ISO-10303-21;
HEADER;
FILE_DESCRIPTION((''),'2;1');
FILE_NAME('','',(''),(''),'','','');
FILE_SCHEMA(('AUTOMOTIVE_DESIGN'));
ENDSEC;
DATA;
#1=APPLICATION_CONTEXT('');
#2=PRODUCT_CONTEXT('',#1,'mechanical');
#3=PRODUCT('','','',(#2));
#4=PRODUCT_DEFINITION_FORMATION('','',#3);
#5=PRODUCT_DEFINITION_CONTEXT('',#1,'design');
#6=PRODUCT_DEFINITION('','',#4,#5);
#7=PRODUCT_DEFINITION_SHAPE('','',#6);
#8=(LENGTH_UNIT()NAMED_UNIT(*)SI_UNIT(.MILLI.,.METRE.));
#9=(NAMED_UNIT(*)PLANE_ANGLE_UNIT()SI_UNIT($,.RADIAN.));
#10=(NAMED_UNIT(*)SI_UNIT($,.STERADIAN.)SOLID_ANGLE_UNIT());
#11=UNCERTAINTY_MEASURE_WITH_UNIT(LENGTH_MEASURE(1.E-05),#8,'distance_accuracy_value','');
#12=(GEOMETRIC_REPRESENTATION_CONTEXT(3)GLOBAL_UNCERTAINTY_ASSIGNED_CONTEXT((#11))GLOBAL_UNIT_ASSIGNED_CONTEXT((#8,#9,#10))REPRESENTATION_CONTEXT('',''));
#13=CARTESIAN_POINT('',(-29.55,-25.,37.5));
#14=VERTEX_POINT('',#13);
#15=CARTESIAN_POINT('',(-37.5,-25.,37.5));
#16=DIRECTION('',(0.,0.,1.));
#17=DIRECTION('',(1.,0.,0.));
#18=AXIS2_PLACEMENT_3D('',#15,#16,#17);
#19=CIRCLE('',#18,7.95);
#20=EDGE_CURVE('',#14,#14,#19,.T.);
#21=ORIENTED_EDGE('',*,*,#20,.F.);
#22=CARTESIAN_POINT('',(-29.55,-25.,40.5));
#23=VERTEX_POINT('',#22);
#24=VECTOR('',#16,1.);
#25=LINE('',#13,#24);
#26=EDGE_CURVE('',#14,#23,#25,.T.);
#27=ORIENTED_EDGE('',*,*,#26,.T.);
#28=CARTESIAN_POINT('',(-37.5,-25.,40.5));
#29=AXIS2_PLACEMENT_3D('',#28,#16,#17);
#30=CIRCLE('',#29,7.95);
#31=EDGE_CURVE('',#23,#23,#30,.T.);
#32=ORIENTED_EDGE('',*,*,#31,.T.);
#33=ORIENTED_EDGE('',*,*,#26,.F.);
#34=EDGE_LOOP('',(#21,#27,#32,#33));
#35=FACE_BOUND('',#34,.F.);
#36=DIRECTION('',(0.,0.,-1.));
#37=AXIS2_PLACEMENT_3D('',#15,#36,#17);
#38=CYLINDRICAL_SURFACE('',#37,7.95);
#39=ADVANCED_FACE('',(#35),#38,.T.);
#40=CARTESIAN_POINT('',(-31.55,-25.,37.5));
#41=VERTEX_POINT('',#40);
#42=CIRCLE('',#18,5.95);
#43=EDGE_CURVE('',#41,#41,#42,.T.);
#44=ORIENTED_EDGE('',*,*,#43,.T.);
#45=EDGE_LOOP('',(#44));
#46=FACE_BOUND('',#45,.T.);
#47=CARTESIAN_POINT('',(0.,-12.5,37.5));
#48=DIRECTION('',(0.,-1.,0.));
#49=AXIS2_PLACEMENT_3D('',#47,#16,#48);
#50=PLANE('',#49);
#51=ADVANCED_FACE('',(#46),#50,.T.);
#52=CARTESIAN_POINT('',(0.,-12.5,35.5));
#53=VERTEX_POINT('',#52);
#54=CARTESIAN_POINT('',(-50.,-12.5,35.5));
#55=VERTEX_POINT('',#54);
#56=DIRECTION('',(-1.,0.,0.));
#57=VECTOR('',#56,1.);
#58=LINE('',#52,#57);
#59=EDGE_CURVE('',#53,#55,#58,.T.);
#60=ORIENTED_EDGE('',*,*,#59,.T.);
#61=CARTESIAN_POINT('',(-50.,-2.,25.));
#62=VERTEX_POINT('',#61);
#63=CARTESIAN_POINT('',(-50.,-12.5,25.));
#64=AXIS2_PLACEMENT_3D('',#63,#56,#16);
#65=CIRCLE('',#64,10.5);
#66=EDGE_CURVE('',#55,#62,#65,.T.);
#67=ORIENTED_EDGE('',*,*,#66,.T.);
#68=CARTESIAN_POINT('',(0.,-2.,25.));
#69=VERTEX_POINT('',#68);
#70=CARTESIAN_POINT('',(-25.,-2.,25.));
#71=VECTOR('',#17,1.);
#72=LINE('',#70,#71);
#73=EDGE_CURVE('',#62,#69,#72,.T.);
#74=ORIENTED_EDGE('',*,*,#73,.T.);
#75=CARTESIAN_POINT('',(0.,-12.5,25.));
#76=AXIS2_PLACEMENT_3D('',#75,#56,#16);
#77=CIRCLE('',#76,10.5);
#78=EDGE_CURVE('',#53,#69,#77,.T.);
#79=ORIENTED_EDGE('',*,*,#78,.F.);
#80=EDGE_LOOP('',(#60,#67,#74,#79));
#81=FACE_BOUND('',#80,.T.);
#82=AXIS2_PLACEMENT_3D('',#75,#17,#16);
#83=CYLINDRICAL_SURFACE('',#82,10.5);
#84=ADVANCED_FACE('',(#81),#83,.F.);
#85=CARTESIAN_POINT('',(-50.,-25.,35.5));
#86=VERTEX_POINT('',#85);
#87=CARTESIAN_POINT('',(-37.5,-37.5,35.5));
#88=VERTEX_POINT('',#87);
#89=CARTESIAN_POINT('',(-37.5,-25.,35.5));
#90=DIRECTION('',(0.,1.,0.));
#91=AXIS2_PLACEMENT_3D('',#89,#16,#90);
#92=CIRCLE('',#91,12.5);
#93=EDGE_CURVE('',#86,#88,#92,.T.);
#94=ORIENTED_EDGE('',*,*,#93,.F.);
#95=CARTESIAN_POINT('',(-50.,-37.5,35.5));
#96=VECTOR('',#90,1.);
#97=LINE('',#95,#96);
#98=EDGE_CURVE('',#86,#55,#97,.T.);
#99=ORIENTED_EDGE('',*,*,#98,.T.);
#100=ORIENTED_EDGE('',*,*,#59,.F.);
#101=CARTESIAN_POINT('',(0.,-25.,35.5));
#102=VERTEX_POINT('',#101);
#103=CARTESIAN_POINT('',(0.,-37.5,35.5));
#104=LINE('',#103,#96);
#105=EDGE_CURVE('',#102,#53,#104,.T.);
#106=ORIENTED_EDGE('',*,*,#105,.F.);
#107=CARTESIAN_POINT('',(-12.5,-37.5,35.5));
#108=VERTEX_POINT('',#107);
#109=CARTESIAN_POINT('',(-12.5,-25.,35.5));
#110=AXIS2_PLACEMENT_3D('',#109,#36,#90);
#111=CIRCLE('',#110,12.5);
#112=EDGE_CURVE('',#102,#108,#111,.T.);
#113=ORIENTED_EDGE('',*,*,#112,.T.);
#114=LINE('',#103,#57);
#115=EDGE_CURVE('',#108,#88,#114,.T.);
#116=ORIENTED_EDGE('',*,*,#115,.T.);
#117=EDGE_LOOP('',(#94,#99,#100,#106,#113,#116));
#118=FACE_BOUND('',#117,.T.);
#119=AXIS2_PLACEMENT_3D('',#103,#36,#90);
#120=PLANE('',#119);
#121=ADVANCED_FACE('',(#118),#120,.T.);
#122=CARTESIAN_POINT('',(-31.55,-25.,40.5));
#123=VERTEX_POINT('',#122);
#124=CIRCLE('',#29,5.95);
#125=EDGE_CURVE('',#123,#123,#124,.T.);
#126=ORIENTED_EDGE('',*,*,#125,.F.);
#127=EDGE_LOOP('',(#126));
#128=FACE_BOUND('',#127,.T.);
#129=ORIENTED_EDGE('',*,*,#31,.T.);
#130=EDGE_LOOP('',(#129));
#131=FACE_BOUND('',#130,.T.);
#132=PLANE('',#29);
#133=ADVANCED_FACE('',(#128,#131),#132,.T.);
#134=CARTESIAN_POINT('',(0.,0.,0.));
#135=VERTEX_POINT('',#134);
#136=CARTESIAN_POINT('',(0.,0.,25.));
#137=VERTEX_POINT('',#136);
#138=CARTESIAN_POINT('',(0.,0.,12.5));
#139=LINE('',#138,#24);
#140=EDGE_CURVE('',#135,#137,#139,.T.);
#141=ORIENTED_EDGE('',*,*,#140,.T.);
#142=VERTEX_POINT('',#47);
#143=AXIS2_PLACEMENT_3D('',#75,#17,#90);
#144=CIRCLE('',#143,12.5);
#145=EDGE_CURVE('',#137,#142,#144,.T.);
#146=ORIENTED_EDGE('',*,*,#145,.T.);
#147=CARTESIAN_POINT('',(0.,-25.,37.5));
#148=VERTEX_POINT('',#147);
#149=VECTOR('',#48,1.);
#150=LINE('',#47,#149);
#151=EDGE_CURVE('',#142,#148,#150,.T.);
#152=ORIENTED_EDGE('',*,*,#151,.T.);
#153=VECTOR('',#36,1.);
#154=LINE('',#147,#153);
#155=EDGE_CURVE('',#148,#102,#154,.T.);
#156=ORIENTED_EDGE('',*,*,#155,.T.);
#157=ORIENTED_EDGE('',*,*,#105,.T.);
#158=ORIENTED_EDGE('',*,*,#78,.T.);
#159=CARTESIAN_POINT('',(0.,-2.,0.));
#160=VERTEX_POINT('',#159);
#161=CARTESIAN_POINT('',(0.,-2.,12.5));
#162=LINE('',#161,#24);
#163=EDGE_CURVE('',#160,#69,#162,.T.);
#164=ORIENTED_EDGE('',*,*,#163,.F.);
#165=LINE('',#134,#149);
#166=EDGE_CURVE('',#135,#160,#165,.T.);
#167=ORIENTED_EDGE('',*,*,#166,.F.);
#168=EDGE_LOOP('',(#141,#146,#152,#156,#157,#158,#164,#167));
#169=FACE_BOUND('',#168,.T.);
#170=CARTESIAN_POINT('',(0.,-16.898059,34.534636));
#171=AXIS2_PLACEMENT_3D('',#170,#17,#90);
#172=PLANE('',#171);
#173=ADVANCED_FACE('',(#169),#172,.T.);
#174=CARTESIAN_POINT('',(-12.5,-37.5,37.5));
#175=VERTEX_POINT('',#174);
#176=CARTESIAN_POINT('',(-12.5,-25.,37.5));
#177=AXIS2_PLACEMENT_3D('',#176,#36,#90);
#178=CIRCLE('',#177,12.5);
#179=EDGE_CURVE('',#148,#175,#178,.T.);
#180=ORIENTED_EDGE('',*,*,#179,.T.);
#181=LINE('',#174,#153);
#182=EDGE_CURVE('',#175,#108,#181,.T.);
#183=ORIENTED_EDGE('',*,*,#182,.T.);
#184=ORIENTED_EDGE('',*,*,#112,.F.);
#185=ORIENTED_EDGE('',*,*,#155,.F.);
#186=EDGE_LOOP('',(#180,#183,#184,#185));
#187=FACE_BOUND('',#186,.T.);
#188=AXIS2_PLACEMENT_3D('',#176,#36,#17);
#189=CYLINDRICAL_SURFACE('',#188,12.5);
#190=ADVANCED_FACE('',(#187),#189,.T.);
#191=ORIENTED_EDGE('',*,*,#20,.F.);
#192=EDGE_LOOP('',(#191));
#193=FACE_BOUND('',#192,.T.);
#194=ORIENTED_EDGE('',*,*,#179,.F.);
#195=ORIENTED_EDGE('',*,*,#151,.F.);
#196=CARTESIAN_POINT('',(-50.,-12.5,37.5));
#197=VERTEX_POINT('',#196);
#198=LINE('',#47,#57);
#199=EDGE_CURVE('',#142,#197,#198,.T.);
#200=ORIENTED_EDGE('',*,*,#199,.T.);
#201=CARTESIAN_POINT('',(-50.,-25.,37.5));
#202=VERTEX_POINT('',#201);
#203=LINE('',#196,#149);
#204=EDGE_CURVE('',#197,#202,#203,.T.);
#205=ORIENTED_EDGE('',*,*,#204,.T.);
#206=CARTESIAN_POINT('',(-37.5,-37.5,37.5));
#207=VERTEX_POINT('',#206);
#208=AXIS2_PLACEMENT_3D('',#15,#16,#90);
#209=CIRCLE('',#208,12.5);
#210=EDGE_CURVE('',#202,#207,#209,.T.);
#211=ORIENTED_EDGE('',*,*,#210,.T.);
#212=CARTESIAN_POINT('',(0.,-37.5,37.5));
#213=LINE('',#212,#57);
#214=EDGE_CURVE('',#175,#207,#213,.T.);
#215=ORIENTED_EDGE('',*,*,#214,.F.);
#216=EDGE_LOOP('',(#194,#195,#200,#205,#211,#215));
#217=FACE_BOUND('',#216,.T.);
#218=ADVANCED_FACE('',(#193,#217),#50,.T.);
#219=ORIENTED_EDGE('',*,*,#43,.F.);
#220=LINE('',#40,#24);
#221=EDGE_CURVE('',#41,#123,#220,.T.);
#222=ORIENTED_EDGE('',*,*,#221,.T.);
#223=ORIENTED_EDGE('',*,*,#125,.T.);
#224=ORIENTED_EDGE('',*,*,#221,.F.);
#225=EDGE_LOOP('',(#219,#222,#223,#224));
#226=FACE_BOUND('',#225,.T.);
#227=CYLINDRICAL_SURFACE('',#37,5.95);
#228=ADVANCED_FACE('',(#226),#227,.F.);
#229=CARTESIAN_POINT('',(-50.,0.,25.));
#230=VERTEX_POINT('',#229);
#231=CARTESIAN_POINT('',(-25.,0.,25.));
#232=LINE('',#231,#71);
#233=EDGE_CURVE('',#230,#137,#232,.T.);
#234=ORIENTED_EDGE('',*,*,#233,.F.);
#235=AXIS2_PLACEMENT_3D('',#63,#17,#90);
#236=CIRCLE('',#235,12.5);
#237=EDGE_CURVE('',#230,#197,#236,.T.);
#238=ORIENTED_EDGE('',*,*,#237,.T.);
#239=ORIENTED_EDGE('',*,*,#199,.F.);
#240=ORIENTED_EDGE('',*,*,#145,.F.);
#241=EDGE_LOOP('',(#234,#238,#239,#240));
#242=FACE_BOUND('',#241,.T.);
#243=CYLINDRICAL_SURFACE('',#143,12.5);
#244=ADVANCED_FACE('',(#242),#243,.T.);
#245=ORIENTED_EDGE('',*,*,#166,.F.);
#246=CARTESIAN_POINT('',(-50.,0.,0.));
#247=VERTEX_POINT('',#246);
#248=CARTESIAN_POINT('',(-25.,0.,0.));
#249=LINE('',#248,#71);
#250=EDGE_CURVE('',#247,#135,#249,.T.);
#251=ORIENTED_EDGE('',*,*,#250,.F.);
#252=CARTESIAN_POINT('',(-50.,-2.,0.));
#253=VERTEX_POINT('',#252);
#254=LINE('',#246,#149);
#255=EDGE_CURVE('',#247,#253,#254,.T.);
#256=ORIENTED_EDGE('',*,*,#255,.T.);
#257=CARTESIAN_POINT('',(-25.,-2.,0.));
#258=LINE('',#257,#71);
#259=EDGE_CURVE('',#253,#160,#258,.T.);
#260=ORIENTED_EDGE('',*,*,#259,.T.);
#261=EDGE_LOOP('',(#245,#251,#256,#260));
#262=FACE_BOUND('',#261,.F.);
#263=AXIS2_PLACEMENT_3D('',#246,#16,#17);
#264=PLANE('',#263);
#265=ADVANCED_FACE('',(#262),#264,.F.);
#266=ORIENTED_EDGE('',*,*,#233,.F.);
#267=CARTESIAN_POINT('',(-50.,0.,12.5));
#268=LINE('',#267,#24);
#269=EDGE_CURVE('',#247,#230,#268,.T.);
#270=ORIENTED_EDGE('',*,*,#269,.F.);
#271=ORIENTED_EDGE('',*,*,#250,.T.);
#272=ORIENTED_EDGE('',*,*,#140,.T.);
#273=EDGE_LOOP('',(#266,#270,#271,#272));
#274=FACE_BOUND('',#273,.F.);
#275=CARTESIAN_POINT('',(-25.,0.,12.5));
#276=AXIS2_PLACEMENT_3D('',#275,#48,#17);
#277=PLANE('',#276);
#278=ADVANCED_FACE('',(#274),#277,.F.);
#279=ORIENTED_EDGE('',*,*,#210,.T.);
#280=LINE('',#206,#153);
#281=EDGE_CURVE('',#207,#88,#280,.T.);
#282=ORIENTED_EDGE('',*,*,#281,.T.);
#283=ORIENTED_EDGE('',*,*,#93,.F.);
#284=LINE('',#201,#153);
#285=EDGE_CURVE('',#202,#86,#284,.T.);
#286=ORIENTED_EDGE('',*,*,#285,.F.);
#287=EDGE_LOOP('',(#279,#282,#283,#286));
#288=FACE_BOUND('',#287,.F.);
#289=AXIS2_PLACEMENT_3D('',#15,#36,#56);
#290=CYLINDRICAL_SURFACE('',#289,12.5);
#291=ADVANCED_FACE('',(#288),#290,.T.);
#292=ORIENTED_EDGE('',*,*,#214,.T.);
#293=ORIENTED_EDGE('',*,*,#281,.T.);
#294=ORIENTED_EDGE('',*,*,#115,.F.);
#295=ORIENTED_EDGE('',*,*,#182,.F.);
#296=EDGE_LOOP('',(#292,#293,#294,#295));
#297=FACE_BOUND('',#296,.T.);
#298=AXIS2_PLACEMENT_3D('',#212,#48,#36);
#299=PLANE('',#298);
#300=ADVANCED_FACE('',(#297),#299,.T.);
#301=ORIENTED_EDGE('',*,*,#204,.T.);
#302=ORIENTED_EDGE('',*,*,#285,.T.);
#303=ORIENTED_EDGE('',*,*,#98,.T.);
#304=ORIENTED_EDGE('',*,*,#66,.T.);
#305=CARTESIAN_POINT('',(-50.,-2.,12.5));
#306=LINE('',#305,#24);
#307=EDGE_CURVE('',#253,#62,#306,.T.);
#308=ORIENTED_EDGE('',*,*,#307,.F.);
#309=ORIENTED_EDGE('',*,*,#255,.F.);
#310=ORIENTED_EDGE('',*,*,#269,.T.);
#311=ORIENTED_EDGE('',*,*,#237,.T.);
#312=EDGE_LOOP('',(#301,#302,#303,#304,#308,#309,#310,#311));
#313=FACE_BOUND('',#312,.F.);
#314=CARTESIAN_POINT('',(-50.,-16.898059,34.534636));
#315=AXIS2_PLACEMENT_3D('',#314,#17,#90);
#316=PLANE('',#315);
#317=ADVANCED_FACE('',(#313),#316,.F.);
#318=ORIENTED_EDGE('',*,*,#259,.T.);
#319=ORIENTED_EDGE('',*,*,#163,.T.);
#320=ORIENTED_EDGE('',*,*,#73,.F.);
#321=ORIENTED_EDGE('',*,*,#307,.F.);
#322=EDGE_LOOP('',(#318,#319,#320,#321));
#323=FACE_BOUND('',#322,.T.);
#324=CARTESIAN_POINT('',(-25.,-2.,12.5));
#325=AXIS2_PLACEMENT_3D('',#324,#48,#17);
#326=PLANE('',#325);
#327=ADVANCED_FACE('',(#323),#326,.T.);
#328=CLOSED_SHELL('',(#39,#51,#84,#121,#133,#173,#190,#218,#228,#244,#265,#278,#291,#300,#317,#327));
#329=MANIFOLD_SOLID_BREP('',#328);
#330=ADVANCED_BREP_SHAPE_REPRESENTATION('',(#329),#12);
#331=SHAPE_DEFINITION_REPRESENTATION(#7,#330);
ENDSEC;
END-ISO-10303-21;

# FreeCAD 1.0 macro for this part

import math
import FreeCAD as App
import Part
import Sketcher
from FreeCAD import Vector
Q = App.Units.Quantity


def edges_at(feature, points):
    """Names of the edges that pass closest to the given points."""
    edges = feature.Shape.Edges
    near = lambda p: min(range(len(edges)), key=lambda i: edges[i].distToShape(Part.Vertex(*p))[0])
    return sorted({f"Edge{near(p) + 1}" for p in points})

doc = App.newDocument("Part")
body = doc.addObject("PartDesign::Body", "Body")

# Sketch on XZ plane
sketch1 = body.newObject("Sketcher::SketchObject", "Sketch")
sketch1.AttachmentSupport = (doc.getObject("XZ_Plane"), [""])
sketch1.MapMode = "FlatFace"
sketch1.addGeometry([
    Part.LineSegment(Vector(-50, 25, 0), Vector(-50, 0, 0)),
    Part.LineSegment(Vector(-50, 0, 0), Vector(0, 0, 0)),
    Part.LineSegment(Vector(0, 0, 0), Vector(0, 25, 0)),
    Part.LineSegment(Vector(0, 25, 0), Vector(-50, 25, 0)),
], False)
sketch1.addConstraint([
    Sketcher.Constraint("Coincident", 0, 2, 1, 1),
    Sketcher.Constraint("Coincident", 1, 2, 2, 1),
    Sketcher.Constraint("Coincident", 2, 2, 3, 1),
    Sketcher.Constraint("Coincident", 3, 2, 0, 1),
    Sketcher.Constraint("Vertical", 0),
    Sketcher.Constraint("Horizontal", 1),
    Sketcher.Constraint("Vertical", 2),
    Sketcher.Constraint("Horizontal", 3),
    Sketcher.Constraint("Coincident", 1, 2, -1, 1),
    Sketcher.Constraint("DistanceX", 1, 1, 1, 2, Q("50 mm")),
    Sketcher.Constraint("DistanceY", 0, 2, 0, 1, Q("25 mm")),
])
pad1 = body.newObject("PartDesign::Pad", "Pad")
pad1.Profile = sketch1
pad1.Length = 2

# Sketch on YZ plane
sketch2 = body.newObject("Sketcher::SketchObject", "Sketch001")
sketch2.AttachmentSupport = (doc.getObject("YZ_Plane"), [""])
sketch2.MapMode = "FlatFace"
sketch2.addGeometry([
    Part.LineSegment(Vector(-2, 25, 0), Vector(0, 25, 0)),  # 0
    Part.ArcOfCircle(Part.Circle(Vector(-12.5, 25, 0), Vector(0, 0, 1), 12.5), math.radians(0), math.radians(90)),  # 1
    Part.LineSegment(Vector(-12.5, 37.5, 0), Vector(-37.5, 37.5, 0)),  # 2
    Part.LineSegment(Vector(-37.5, 37.5, 0), Vector(-37.5, 35.5, 0)),  # 3
    Part.LineSegment(Vector(-37.5, 35.5, 0), Vector(-12.5, 35.5, 0)),  # 4
    Part.ArcOfCircle(Part.Circle(Vector(-12.5, 25, 0), Vector(0, 0, 1), 10.5), math.radians(0), math.radians(90)),  # 5
], False)
sketch2.addConstraint([
    Sketcher.Constraint("Coincident", 0, 2, 1, 1),
    Sketcher.Constraint("Tangent", 1, 2, 2, 1),
    Sketcher.Constraint("Coincident", 2, 2, 3, 1),
    Sketcher.Constraint("Coincident", 3, 2, 4, 1),
    Sketcher.Constraint("Tangent", 4, 2, 5, 2),
    Sketcher.Constraint("Coincident", 5, 1, 0, 1),
    Sketcher.Constraint("Horizontal", 0),
    Sketcher.Constraint("Horizontal", 2),
    Sketcher.Constraint("Vertical", 3),
    Sketcher.Constraint("Horizontal", 4),
    Sketcher.Constraint("Coincident", 5, 3, 1, 3),
    Sketcher.Constraint("PointOnObject", 0, 2, -2),
    Sketcher.Constraint("Horizontal", 5, 3, 0, 2),
    Sketcher.Constraint("Radius", 1, Q("12.5 mm")),
    Sketcher.Constraint("Radius", 5, Q("10.5 mm")),
    Sketcher.Constraint("DistanceX", 2, 2, 2, 1, Q("25 mm")),
    Sketcher.Constraint("DistanceY", -1, 1, 1, 3, Q("25 mm")),
])
pad2 = body.newObject("PartDesign::Pad", "Pad001")
pad2.Profile = sketch2
pad2.Length = 50
pad2.Reversed = True
doc.recompute()

fillet = body.newObject("PartDesign::Fillet", "Fillet")
fillet.Base = (pad2, edges_at(pad2, [(-50, -37.5, 36.5), (0, -37.5, 36.5)]))
fillet.Radius = 12.5

# Sketch on XY plane
sketch3 = body.newObject("Sketcher::SketchObject", "Sketch002")
sketch3.AttachmentSupport = (doc.getObject("XY_Plane"), [""])
sketch3.MapMode = "FlatFace"
sketch3.AttachmentOffset = App.Placement(Vector(0, 0, 37.5), App.Rotation())
sketch3.addGeometry([
    Part.Circle(Vector(-38, -25, 0), Vector(0, 0, 1), 8),
    Part.Circle(Vector(-38, -25, 0), Vector(0, 0, 1), 6),
], False)
sketch3.addConstraint([
    Sketcher.Constraint("Coincident", 1, 3, 0, 3),
    Sketcher.Constraint("Diameter", 0, Q("15.9 mm")),
    Sketcher.Constraint("Diameter", 1, Q("11.9 mm")),
    Sketcher.Constraint("DistanceY", 0, 3, -1, 1, Q("25 mm")),
    Sketcher.Constraint("DistanceX", 0, 3, -1, 1, Q("37.5 mm")),
])
pad3 = body.newObject("PartDesign::Pad", "Pad002")
pad3.Profile = sketch3
pad3.Length = 3

doc.recompute()
